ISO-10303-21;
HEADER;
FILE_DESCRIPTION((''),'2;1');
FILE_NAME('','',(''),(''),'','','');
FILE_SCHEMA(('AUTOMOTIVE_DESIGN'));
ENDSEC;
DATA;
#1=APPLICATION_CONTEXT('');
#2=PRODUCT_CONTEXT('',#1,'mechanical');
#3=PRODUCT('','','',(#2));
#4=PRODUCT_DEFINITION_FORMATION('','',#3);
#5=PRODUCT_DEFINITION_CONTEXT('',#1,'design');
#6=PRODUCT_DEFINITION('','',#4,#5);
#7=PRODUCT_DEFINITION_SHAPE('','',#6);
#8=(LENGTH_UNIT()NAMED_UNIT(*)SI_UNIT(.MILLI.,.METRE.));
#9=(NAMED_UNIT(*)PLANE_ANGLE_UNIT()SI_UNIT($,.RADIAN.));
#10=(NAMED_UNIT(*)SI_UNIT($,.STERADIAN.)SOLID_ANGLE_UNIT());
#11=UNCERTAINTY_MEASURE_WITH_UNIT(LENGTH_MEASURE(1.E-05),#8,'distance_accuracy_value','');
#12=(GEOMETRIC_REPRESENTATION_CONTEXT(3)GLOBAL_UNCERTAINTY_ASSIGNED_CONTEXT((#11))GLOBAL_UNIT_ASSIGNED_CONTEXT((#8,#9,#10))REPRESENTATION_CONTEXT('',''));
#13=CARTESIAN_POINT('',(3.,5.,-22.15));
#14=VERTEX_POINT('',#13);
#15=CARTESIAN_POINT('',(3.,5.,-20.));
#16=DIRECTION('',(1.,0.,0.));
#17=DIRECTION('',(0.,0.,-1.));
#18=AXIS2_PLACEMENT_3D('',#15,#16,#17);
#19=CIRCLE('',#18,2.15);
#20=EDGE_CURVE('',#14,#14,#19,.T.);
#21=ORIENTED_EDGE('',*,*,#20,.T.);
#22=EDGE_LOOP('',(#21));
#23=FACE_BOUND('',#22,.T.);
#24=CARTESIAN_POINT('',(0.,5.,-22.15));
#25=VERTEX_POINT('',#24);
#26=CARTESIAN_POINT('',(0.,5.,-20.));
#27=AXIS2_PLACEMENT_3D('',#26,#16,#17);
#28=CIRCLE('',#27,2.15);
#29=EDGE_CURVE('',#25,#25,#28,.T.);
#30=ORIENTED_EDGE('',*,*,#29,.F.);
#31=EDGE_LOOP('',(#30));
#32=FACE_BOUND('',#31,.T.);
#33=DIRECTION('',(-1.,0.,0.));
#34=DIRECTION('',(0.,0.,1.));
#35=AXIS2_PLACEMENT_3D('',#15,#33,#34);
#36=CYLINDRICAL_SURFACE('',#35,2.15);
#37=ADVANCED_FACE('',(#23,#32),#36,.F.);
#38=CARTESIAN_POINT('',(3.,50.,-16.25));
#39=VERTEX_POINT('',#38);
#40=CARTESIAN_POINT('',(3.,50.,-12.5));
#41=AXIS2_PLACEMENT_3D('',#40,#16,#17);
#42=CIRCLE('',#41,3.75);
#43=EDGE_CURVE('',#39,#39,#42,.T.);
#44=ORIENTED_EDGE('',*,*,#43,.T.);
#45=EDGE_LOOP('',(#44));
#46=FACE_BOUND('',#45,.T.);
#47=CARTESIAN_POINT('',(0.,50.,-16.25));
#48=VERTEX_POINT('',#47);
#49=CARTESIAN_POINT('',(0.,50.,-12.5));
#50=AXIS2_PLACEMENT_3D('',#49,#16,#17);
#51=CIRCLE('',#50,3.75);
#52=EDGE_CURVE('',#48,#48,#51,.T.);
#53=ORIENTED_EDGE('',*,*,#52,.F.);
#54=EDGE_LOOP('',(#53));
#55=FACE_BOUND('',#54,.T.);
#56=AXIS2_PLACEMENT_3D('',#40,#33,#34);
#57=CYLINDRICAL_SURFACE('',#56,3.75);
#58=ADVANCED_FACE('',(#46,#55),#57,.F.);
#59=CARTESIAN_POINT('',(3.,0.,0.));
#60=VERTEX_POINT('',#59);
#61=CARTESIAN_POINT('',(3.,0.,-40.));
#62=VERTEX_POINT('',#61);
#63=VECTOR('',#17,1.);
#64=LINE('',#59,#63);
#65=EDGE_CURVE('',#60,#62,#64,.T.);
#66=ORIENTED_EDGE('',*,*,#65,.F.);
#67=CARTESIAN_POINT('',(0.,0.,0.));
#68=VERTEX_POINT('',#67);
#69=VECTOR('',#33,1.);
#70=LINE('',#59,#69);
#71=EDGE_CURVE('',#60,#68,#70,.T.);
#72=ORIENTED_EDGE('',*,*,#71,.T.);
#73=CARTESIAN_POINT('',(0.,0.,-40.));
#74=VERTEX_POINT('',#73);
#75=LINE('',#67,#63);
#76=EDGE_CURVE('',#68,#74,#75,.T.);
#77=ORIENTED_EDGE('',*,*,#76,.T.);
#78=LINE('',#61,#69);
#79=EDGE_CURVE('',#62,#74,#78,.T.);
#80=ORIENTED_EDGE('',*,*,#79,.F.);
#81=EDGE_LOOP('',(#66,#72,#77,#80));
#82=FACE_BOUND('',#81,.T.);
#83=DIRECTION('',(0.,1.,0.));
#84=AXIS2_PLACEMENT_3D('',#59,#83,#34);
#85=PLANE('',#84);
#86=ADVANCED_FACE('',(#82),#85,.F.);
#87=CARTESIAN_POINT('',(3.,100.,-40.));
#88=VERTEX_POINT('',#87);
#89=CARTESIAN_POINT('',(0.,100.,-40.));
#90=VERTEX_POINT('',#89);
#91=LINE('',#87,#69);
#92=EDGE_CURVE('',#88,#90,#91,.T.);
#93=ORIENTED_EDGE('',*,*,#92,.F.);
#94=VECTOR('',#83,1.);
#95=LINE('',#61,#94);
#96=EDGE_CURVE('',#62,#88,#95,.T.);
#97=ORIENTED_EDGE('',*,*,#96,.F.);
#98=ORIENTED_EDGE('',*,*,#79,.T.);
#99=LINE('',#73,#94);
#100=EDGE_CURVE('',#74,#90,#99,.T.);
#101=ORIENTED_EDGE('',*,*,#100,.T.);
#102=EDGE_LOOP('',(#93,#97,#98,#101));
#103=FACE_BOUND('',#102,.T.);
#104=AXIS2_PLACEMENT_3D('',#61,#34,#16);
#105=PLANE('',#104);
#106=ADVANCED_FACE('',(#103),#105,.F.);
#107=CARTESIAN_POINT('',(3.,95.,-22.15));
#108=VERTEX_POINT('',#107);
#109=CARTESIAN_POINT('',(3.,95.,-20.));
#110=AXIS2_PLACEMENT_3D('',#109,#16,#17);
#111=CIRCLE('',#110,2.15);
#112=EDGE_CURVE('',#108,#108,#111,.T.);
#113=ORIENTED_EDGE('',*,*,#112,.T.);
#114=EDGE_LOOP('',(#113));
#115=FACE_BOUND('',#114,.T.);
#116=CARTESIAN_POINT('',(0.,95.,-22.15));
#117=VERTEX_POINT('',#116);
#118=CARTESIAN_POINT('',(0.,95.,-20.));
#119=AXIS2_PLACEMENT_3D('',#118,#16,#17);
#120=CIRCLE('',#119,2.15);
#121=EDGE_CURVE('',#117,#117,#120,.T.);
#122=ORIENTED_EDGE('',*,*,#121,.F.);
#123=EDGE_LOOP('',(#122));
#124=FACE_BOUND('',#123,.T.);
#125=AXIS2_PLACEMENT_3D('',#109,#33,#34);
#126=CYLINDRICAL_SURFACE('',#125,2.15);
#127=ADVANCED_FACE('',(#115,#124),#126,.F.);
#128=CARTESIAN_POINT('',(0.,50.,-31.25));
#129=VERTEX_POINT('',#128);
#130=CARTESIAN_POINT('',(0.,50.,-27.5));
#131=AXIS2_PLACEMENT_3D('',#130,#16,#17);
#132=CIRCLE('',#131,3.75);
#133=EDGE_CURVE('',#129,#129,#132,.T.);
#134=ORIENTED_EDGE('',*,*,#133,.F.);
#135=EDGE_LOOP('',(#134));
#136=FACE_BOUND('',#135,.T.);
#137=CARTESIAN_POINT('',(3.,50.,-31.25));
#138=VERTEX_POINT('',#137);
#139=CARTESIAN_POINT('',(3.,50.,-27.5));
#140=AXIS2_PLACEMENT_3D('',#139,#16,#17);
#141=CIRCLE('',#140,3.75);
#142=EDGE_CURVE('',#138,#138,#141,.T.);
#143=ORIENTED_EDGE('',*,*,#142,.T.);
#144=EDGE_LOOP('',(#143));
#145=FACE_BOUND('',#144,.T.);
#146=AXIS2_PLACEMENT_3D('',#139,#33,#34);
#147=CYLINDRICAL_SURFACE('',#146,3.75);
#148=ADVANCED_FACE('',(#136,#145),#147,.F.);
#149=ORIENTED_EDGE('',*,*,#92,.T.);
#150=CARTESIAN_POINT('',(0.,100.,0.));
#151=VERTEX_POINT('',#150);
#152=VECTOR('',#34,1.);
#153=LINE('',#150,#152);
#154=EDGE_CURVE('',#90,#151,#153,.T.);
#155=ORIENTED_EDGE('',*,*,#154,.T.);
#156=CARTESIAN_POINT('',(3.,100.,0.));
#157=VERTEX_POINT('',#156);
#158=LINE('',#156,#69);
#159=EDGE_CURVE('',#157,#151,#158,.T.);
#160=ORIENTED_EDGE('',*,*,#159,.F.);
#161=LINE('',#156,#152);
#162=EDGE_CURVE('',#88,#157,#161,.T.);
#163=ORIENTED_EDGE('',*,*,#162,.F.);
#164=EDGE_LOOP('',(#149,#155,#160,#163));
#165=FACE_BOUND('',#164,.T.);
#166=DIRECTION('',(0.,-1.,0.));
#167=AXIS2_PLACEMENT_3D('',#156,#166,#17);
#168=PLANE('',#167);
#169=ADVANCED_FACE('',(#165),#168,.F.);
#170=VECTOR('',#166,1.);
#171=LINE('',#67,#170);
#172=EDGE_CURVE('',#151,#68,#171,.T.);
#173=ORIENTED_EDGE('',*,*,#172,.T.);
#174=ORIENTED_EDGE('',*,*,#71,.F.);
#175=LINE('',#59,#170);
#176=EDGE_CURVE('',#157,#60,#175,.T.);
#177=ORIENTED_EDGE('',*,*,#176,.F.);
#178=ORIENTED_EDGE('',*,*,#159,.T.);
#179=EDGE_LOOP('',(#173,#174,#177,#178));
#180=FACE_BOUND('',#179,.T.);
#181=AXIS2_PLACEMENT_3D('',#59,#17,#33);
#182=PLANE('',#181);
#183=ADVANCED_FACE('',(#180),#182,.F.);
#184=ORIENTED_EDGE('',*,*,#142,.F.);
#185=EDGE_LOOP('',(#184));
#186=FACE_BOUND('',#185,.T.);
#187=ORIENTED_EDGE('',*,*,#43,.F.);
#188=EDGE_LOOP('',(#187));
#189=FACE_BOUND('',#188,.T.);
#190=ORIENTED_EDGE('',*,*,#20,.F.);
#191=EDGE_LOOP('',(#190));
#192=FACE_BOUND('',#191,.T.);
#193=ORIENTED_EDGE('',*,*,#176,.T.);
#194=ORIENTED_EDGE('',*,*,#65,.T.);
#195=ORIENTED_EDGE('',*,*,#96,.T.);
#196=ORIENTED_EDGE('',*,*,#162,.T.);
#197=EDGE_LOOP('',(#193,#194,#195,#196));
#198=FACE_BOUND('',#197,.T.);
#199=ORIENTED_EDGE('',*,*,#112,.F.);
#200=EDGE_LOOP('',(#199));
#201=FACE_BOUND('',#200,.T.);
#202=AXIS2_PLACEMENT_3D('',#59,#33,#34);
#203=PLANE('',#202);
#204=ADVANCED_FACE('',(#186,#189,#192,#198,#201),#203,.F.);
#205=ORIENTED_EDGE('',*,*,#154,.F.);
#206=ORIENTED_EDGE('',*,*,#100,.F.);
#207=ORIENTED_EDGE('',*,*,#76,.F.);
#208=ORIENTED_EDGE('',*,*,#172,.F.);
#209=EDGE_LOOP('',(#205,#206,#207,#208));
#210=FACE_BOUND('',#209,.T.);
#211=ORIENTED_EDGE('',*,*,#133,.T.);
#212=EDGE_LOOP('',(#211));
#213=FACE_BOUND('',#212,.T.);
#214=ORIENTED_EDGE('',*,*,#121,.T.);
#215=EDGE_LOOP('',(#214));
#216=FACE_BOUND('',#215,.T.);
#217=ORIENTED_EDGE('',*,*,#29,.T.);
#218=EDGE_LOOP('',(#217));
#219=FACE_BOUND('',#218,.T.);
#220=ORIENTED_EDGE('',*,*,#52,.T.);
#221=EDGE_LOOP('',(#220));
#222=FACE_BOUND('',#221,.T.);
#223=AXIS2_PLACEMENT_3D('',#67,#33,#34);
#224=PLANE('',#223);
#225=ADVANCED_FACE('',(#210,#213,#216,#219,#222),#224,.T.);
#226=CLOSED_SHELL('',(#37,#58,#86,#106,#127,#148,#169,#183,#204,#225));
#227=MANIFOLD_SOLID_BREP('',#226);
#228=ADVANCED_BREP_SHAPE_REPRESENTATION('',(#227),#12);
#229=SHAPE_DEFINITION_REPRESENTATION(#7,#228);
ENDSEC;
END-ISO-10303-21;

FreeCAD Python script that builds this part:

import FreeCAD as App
import Part
import Sketcher
Q = App.Units.Quantity


def add_polygon(sketch, points):
    """Adds a closed chain of lines whose ends are joined by coincident constraints."""
    first, n = sketch.GeometryCount, len(points)
    for a, b in zip(points, points[1:] + points[:1]):
        sketch.addGeometry(Part.LineSegment(App.Vector(*a, 0), App.Vector(*b, 0)), False)
    for i in range(n):
        sketch.addConstraint(Sketcher.Constraint("Coincident", first + i, 2, first + (i + 1) % n, 1))

doc = App.newDocument("Part")
body = doc.addObject("PartDesign::Body", "Body")

sketch1 = body.newObject("Sketcher::SketchObject", "Sketch")
sketch1.AttachmentSupport = (doc.getObject("YZ_Plane"), [""])
sketch1.MapMode = "FlatFace"
add_polygon(sketch1, [(100, 0), (0, 0), (0, -40), (100, -40)])
sketch1.addGeometry(Part.Circle(App.Vector(5, -20, 0), App.Vector(0, 0, 1), 2.1), False)
sketch1.addGeometry(Part.Circle(App.Vector(50, -12.5, 0), App.Vector(0, 0, 1), 3.8), False)
sketch1.addGeometry(Part.Circle(App.Vector(50, -27.5, 0), App.Vector(0, 0, 1), 3.8), False)
sketch1.addGeometry(Part.Circle(App.Vector(95, -20, 0), App.Vector(0, 0, 1), 2.1), False)
sketch1.addConstraint([
    Sketcher.Constraint("Horizontal", 0),
    Sketcher.Constraint("Vertical", 1),
    Sketcher.Constraint("Horizontal", 2),
    Sketcher.Constraint("Vertical", 3),
    Sketcher.Constraint("Coincident", 0, 2, -1, 1),
    Sketcher.Constraint("Equal", 5, 6),
    Sketcher.Constraint("Equal", 4, 7),
    Sketcher.Constraint("Horizontal", 4, 3, 7, 3),
    Sketcher.Constraint("Vertical", 5, 3, 6, 3),
    Sketcher.Constraint("Diameter", 4, Q("4.3 mm")),
    Sketcher.Constraint("Diameter", 5, Q("7.5 mm")),
    Sketcher.Constraint("DistanceX", 0, 2, 0, 1, Q("100 mm")),
    Sketcher.Constraint("DistanceY", 1, 2, 1, 1, Q("40 mm")),
    Sketcher.Constraint("DistanceX", -1, 1, 4, 3, Q("5 mm")),
    Sketcher.Constraint("DistanceY", 4, 3, -1, 1, Q("20 mm")),
    Sketcher.Constraint("DistanceX", -1, 1, 5, 3, Q("50 mm")),
    Sketcher.Constraint("DistanceX", -1, 1, 7, 3, Q("95 mm")),
    Sketcher.Constraint("DistanceY", 6, 3, 5, 3, Q("15 mm")),
    Sketcher.Constraint("DistanceY", 5, 3, -1, 1, Q("12.5 mm")),
])
pad1 = body.newObject("PartDesign::Pad", "Pad")
pad1.Profile = sketch1
pad1.Length = 3

doc.recompute()
